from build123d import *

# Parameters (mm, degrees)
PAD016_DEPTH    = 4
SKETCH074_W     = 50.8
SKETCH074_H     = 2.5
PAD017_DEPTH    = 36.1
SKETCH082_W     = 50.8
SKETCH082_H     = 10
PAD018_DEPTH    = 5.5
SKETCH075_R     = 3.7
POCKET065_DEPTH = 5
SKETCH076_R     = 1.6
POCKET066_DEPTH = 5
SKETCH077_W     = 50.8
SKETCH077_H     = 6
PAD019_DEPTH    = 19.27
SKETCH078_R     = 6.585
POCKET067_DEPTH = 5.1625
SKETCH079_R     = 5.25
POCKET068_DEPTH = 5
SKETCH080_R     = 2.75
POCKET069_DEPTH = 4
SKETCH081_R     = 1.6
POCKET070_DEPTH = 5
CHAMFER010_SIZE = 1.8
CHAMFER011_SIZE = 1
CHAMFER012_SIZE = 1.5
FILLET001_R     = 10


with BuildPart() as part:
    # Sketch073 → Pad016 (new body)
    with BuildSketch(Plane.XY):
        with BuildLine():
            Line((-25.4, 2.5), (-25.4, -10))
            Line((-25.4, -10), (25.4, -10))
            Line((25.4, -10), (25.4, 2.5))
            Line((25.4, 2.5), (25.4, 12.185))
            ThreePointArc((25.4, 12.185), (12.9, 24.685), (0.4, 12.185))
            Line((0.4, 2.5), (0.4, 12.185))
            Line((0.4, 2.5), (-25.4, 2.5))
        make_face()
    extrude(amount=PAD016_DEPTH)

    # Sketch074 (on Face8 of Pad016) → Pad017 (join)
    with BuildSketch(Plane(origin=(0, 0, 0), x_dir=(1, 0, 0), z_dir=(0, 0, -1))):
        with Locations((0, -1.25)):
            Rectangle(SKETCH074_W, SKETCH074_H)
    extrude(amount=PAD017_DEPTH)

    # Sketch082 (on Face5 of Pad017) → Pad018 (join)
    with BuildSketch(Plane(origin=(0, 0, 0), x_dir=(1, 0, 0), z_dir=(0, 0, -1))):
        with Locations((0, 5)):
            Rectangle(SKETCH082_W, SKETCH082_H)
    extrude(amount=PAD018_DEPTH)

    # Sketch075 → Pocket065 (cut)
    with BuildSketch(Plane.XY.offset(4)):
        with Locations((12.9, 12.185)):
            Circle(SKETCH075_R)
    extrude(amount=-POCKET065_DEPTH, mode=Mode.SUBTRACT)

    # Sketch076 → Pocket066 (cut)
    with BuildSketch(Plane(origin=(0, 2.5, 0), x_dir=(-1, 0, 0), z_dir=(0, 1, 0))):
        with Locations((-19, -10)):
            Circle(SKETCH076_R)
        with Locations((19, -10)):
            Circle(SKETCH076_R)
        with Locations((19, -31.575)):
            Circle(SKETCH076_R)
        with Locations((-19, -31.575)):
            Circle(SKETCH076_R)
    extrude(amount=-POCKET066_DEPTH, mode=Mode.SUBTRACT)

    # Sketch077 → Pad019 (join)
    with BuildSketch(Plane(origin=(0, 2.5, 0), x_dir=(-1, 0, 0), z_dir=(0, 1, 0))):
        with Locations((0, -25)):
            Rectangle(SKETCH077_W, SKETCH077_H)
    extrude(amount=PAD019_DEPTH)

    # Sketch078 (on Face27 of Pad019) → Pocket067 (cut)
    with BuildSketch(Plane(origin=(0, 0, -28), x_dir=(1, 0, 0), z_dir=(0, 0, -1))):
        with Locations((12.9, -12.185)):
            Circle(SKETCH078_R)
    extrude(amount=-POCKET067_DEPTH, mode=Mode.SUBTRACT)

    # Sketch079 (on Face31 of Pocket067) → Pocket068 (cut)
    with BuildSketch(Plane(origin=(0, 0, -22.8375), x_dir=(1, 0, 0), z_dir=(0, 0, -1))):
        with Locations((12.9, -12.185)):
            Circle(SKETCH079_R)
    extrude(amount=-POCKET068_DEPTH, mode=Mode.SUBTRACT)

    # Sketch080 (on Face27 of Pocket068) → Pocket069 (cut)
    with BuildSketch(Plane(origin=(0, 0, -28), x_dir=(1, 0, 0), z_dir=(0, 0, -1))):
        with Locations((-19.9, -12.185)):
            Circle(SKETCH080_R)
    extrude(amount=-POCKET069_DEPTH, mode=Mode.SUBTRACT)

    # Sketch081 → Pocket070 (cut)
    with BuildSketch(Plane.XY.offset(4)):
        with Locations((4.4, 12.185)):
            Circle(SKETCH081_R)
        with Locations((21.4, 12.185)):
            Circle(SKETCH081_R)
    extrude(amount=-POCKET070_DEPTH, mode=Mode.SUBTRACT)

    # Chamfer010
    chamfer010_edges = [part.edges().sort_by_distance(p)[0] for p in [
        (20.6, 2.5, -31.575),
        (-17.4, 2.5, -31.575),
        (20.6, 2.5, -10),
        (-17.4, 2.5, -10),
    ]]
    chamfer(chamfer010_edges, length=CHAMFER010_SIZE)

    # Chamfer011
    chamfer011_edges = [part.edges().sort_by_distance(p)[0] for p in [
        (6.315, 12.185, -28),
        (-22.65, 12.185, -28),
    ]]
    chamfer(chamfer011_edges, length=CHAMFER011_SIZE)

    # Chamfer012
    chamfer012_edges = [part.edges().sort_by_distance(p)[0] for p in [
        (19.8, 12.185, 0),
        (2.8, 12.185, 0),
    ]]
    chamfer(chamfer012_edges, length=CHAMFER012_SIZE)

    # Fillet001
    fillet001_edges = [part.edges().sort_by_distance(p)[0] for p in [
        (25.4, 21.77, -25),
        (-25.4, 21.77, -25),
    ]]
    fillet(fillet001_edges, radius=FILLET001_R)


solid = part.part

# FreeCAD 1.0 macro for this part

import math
import FreeCAD as App
import Part
import Sketcher


def edges_at(feature, points):
    """Names of the edges that pass closest to the given points."""
    edges = feature.Shape.Edges
    near = lambda p: min(range(len(edges)), key=lambda i: edges[i].distToShape(Part.Vertex(*p))[0])
    return sorted({f"Edge{near(p) + 1}" for p in points})

doc = App.newDocument("Part")
body = doc.addObject("PartDesign::Body", "Body")

sketch1 = body.newObject("Sketcher::SketchObject", "Sketch")
sketch1.AttachmentSupport = (doc.getObject("XY_Plane"), [""])
sketch1.MapMode = "FlatFace"
sketch1.addGeometry(Part.LineSegment(App.Vector(-25, 2, 0), App.Vector(-25, -10, 0)), False)
sketch1.addGeometry(Part.LineSegment(App.Vector(-25, -10, 0), App.Vector(25, -10, 0)), False)
sketch1.addGeometry(Part.LineSegment(App.Vector(25, -10, 0), App.Vector(25, 12, 0)), False)
sketch1.addGeometry(Part.ArcOfCircle(Part.Circle(App.Vector(13, 12, 0), App.Vector(0, 0, 1), 12), math.radians(0), math.radians(180)), False)
sketch1.addGeometry(Part.LineSegment(App.Vector(0, 12, 0), App.Vector(0, 2, 0)), False)
sketch1.addGeometry(Part.LineSegment(App.Vector(0, 2, 0), App.Vector(-25, 2, 0)), False)
sketch1.addConstraint(Sketcher.Constraint("Coincident", 0, 2, 1, 1))
sketch1.addConstraint(Sketcher.Constraint("Coincident", 1, 2, 2, 1))
sketch1.addConstraint(Sketcher.Constraint("Tangent", 2, 2, 3, 1))
sketch1.addConstraint(Sketcher.Constraint("Tangent", 3, 2, 4, 1))
sketch1.addConstraint(Sketcher.Constraint("Coincident", 4, 2, 5, 1))
sketch1.addConstraint(Sketcher.Constraint("Coincident", 5, 2, 0, 1))
sketch1.addConstraint(Sketcher.Constraint("Vertical", 0))
sketch1.addConstraint(Sketcher.Constraint("Horizontal", 1))
sketch1.addConstraint(Sketcher.Constraint("Vertical", 2))
sketch1.addConstraint(Sketcher.Constraint("Vertical", 4))
sketch1.addConstraint(Sketcher.Constraint("Horizontal", 5))
sketch1.addConstraint(Sketcher.Constraint("Radius", 3, 12.5))
sketch1.addConstraint(Sketcher.Constraint("DistanceX", 1, 1, 1, 2, 50.8))
sketch1.addConstraint(Sketcher.Constraint("DistanceY", 0, 2, 0, 1, 12.5))
sketch1.addConstraint(Sketcher.Constraint("DistanceY", 0, 2, -1, 1, 10.0))
sketch1.addConstraint(Sketcher.Constraint("DistanceX", -1, 1, 3, 3, 12.9))
sketch1.addConstraint(Sketcher.Constraint("DistanceY", 2, 1, 2, 2, 22.185))
pad1 = body.newObject("PartDesign::Pad", "Pad")
pad1.Profile = sketch1
pad1.Length = 4

sketch2 = body.newObject("Sketcher::SketchObject", "Sketch001")
sketch2.AttachmentSupport = (doc.getObject("XY_Plane"), [""])
sketch2.MapMode = "FlatFace"
sketch2.addGeometry(Part.LineSegment(App.Vector(-25.4, 0, 0), App.Vector(-25.4, 2.5, 0)), False)
sketch2.addGeometry(Part.LineSegment(App.Vector(-25.4, 2.5, 0), App.Vector(25.4, 2.5, 0)), False)
sketch2.addGeometry(Part.LineSegment(App.Vector(25.4, 2.5, 0), App.Vector(25.4, 0, 0)), False)
sketch2.addGeometry(Part.LineSegment(App.Vector(25.4, 0, 0), App.Vector(-25.4, 0, 0)), False)
sketch2.addConstraint(Sketcher.Constraint("Coincident", 0, 2, 1, 1))
sketch2.addConstraint(Sketcher.Constraint("Coincident", 1, 2, 2, 1))
sketch2.addConstraint(Sketcher.Constraint("Coincident", 2, 2, 3, 1))
sketch2.addConstraint(Sketcher.Constraint("Coincident", 3, 2, 0, 1))
sketch2.addConstraint(Sketcher.Constraint("Vertical", 0))
sketch2.addConstraint(Sketcher.Constraint("Horizontal", 1))
sketch2.addConstraint(Sketcher.Constraint("Vertical", 2))
sketch2.addConstraint(Sketcher.Constraint("Horizontal", 3))
sketch2.addConstraint(Sketcher.Constraint("Symmetric", 2, 2, 3, 2, -1, 1))
sketch2.addConstraint(Sketcher.Constraint("DistanceX", 1, 1, 1, 2, 50.8))
sketch2.addConstraint(Sketcher.Constraint("DistanceY", 0, 1, 0, 2, 2.5))
pad2 = body.newObject("PartDesign::Pad", "Pad001")
pad2.Profile = sketch2
pad2.Length = 36.1
pad2.Reversed = True

sketch3 = body.newObject("Sketcher::SketchObject", "Sketch002")
sketch3.AttachmentSupport = (doc.getObject("XY_Plane"), [""])
sketch3.MapMode = "FlatFace"
sketch3.addGeometry(Part.LineSegment(App.Vector(-25, -10, 0), App.Vector(-25, 0, 0)), False)
sketch3.addGeometry(Part.LineSegment(App.Vector(-25, 0, 0), App.Vector(25, 0, 0)), False)
sketch3.addGeometry(Part.LineSegment(App.Vector(25, 0, 0), App.Vector(25, -10, 0)), False)
sketch3.addGeometry(Part.LineSegment(App.Vector(25, -10, 0), App.Vector(-25, -10, 0)), False)
sketch3.addConstraint(Sketcher.Constraint("Coincident", 0, 2, 1, 1))
sketch3.addConstraint(Sketcher.Constraint("Coincident", 1, 2, 2, 1))
sketch3.addConstraint(Sketcher.Constraint("Coincident", 2, 2, 3, 1))
sketch3.addConstraint(Sketcher.Constraint("Coincident", 3, 2, 0, 1))
sketch3.addConstraint(Sketcher.Constraint("Vertical", 0))
sketch3.addConstraint(Sketcher.Constraint("Horizontal", 1))
sketch3.addConstraint(Sketcher.Constraint("Vertical", 2))
sketch3.addConstraint(Sketcher.Constraint("Horizontal", 3))
sketch3.addConstraint(Sketcher.Constraint("Symmetric", 0, 2, 1, 2, -1, 1))
sketch3.addConstraint(Sketcher.Constraint("DistanceY", 0, 1, 0, 2, 10.0))
sketch3.addConstraint(Sketcher.Constraint("DistanceX", 1, 1, 1, 2, 50.8))
pad3 = body.newObject("PartDesign::Pad", "Pad002")
pad3.Profile = sketch3
pad3.Length = 5.5
pad3.Reversed = True

sketch4 = body.newObject("Sketcher::SketchObject", "Sketch003")
sketch4.AttachmentSupport = (doc.getObject("XY_Plane"), [""])
sketch4.MapMode = "FlatFace"
sketch4.AttachmentOffset = App.Placement(App.Vector(0, 0, 4), App.Rotation())
sketch4.addGeometry(Part.Circle(App.Vector(12.9, 12.2, 0), App.Vector(0, 0, 1), 3.7), False)
sketch4.addConstraint(Sketcher.Constraint("Diameter", 0, 7.4))
sketch4.addConstraint(Sketcher.Constraint("DistanceX", -1, 1, 0, 3, 12.9))
sketch4.addConstraint(Sketcher.Constraint("DistanceY", -1, 1, 0, 3, 12.185))
pocket1 = body.newObject("PartDesign::Pocket", "Pocket")
pocket1.Profile = sketch4
pocket1.Length = 5

sketch5 = body.newObject("Sketcher::SketchObject", "Sketch004")
sketch5.AttachmentSupport = (doc.getObject("XZ_Plane"), [""])
sketch5.MapMode = "FlatFace"
sketch5.AttachmentOffset = App.Placement(App.Vector(0, 0, -2.5), App.Rotation())
sketch5.addGeometry(Part.Circle(App.Vector(19, -10, 0), App.Vector(0, 0, 1), 1.6), False)
sketch5.addGeometry(Part.Circle(App.Vector(-19, -10, 0), App.Vector(0, 0, 1), 1.6), False)
sketch5.addGeometry(Part.Circle(App.Vector(-19, -31.6, 0), App.Vector(0, 0, 1), 1.6), False)
sketch5.addGeometry(Part.Circle(App.Vector(19, -31.6, 0), App.Vector(0, 0, 1), 1.6), False)
sketch5.addConstraint(Sketcher.Constraint("Equal", 0, 1))
sketch5.addConstraint(Sketcher.Constraint("Equal", 1, 2))
sketch5.addConstraint(Sketcher.Constraint("Equal", 2, 3))
sketch5.addConstraint(Sketcher.Constraint("Symmetric", 0, 3, 1, 3, -2))
sketch5.addConstraint(Sketcher.Constraint("Symmetric", 2, 3, 3, 3, -2))
sketch5.addConstraint(Sketcher.Constraint("Vertical", 1, 3, 2, 3))
sketch5.addConstraint(Sketcher.Constraint("Diameter", 0, 3.2))
sketch5.addConstraint(Sketcher.Constraint("DistanceX", -1, 1, 0, 3, 19.0))
sketch5.addConstraint(Sketcher.Constraint("DistanceY", 0, 3, -1, 1, 10.0))
sketch5.addConstraint(Sketcher.Constraint("DistanceY", 2, 3, -1, 1, 31.575))
pocket2 = body.newObject("PartDesign::Pocket", "Pocket001")
pocket2.Profile = sketch5
pocket2.Length = 5
pocket2.Reversed = True

sketch6 = body.newObject("Sketcher::SketchObject", "Sketch005")
sketch6.AttachmentSupport = (doc.getObject("XZ_Plane"), [""])
sketch6.MapMode = "FlatFace"
sketch6.AttachmentOffset = App.Placement(App.Vector(0, 0, -2.5), App.Rotation())
sketch6.addGeometry(Part.LineSegment(App.Vector(25, -22, 0), App.Vector(25, -28, 0)), False)
sketch6.addGeometry(Part.LineSegment(App.Vector(25, -28, 0), App.Vector(-25, -28, 0)), False)
sketch6.addGeometry(Part.LineSegment(App.Vector(-25, -28, 0), App.Vector(-25, -22, 0)), False)
sketch6.addGeometry(Part.LineSegment(App.Vector(-25, -22, 0), App.Vector(25, -22, 0)), False)
sketch6.addConstraint(Sketcher.Constraint("Coincident", 0, 2, 1, 1))
sketch6.addConstraint(Sketcher.Constraint("Coincident", 1, 2, 2, 1))
sketch6.addConstraint(Sketcher.Constraint("Coincident", 2, 2, 3, 1))
sketch6.addConstraint(Sketcher.Constraint("Coincident", 3, 2, 0, 1))
sketch6.addConstraint(Sketcher.Constraint("Vertical", 0))
sketch6.addConstraint(Sketcher.Constraint("Horizontal", 1))
sketch6.addConstraint(Sketcher.Constraint("Vertical", 2))
sketch6.addConstraint(Sketcher.Constraint("Horizontal", 3))
sketch6.addConstraint(Sketcher.Constraint("DistanceY", 0, 2, 0, 1, 6.0))
sketch6.addConstraint(Sketcher.Constraint("DistanceX", 1, 2, 1, 1, 50.8))
sketch6.addConstraint(Sketcher.Constraint("DistanceY", 0, 2, -1, 1, 28.0))
sketch6.addConstraint(Sketcher.Constraint("DistanceX", -1, 1, 0, 2, 25.4))
pad4 = body.newObject("PartDesign::Pad", "Pad003")
pad4.Profile = sketch6
pad4.Length = 19.27
pad4.Reversed = True

sketch7 = body.newObject("Sketcher::SketchObject", "Sketch006")
sketch7.AttachmentSupport = (doc.getObject("XY_Plane"), [""])
sketch7.MapMode = "FlatFace"
sketch7.AttachmentOffset = App.Placement(App.Vector(0, 0, -28), App.Rotation())
sketch7.addGeometry(Part.Circle(App.Vector(13, 12, 0), App.Vector(0, 0, 1), 7), False)
sketch7.addConstraint(Sketcher.Constraint("Diameter", 0, 13.17))
sketch7.addConstraint(Sketcher.Constraint("DistanceX", -1, 1, 0, 3, 12.9))
sketch7.addConstraint(Sketcher.Constraint("DistanceY", -1, 1, 0, 3, 12.185))
pocket3 = body.newObject("PartDesign::Pocket", "Pocket002")
pocket3.Profile = sketch7
pocket3.Length = 5.1625
pocket3.Reversed = True

sketch8 = body.newObject("Sketcher::SketchObject", "Sketch007")
sketch8.AttachmentSupport = (doc.getObject("XY_Plane"), [""])
sketch8.MapMode = "FlatFace"
sketch8.AttachmentOffset = App.Placement(App.Vector(0, 0, -22.8375), App.Rotation())
sketch8.addGeometry(Part.Circle(App.Vector(13, 12, 0), App.Vector(0, 0, 1), 5), False)
sketch8.addConstraint(Sketcher.Constraint("Diameter", 0, 10.5))
sketch8.addConstraint(Sketcher.Constraint("DistanceX", -1, 1, 0, 3, 12.9))
sketch8.addConstraint(Sketcher.Constraint("DistanceY", -1, 1, 0, 3, 12.185))
pocket4 = body.newObject("PartDesign::Pocket", "Pocket003")
pocket4.Profile = sketch8
pocket4.Length = 5
pocket4.Reversed = True

sketch9 = body.newObject("Sketcher::SketchObject", "Sketch008")
sketch9.AttachmentSupport = (doc.getObject("XY_Plane"), [""])
sketch9.MapMode = "FlatFace"
sketch9.AttachmentOffset = App.Placement(App.Vector(0, 0, -28), App.Rotation())
sketch9.addGeometry(Part.Circle(App.Vector(-19.9, 12.2, 0), App.Vector(0, 0, 1), 2.8), False)
sketch9.addConstraint(Sketcher.Constraint("Diameter", 0, 5.5))
sketch9.addConstraint(Sketcher.Constraint("DistanceX", 0, 3, -1, 1, 19.9))
sketch9.addConstraint(Sketcher.Constraint("DistanceY", -1, 1, 0, 3, 12.185))
pocket5 = body.newObject("PartDesign::Pocket", "Pocket004")
pocket5.Profile = sketch9
pocket5.Length = 4
pocket5.Reversed = True

sketch10 = body.newObject("Sketcher::SketchObject", "Sketch009")
sketch10.AttachmentSupport = (doc.getObject("XY_Plane"), [""])
sketch10.MapMode = "FlatFace"
sketch10.AttachmentOffset = App.Placement(App.Vector(0, 0, 4), App.Rotation())
sketch10.addGeometry(Part.Circle(App.Vector(4.4, 12.2, 0), App.Vector(0, 0, 1), 1.6), False)
sketch10.addGeometry(Part.Circle(App.Vector(21.4, 12.2, 0), App.Vector(0, 0, 1), 1.6), False)
sketch10.addConstraint(Sketcher.Constraint("Equal", 0, 1))
sketch10.addConstraint(Sketcher.Constraint("Horizontal", 0, 3, 1, 3))
sketch10.addConstraint(Sketcher.Constraint("Diameter", 0, 3.2))
sketch10.addConstraint(Sketcher.Constraint("DistanceX", 0, 3, 1, 3, 17.0))
sketch10.addConstraint(Sketcher.Constraint("DistanceX", -1, 1, 0, 3, 4.4))
sketch10.addConstraint(Sketcher.Constraint("DistanceY", -1, 1, 0, 3, 12.185))
pocket6 = body.newObject("PartDesign::Pocket", "Pocket005")
pocket6.Profile = sketch10
pocket6.Length = 5
doc.recompute()

chamfer = body.newObject("PartDesign::Chamfer", "Chamfer")
chamfer.Base = (pocket6, edges_at(pocket6, [
    (20.6, 2.5, -31.575),
    (-17.4, 2.5, -31.575),
    (20.6, 2.5, -10),
    (-17.4, 2.5, -10),
]))
chamfer.Size = 1.8
doc.recompute()

chamfer2 = body.newObject("PartDesign::Chamfer", "Chamfer001")
chamfer2.Base = (chamfer, edges_at(chamfer, [(6.315, 12.185, -28), (-22.65, 12.185, -28)]))
chamfer2.Size = 1
doc.recompute()

chamfer3 = body.newObject("PartDesign::Chamfer", "Chamfer002")
chamfer3.Base = (chamfer2, edges_at(chamfer2, [(19.8, 12.185, 0), (2.8, 12.185, 0)]))
chamfer3.Size = 1.5
doc.recompute()

fillet = body.newObject("PartDesign::Fillet", "Fillet")
fillet.Base = (chamfer3, edges_at(chamfer3, [(25.4, 21.77, -25), (-25.4, 21.77, -25)]))
fillet.Radius = 10

doc.recompute()
